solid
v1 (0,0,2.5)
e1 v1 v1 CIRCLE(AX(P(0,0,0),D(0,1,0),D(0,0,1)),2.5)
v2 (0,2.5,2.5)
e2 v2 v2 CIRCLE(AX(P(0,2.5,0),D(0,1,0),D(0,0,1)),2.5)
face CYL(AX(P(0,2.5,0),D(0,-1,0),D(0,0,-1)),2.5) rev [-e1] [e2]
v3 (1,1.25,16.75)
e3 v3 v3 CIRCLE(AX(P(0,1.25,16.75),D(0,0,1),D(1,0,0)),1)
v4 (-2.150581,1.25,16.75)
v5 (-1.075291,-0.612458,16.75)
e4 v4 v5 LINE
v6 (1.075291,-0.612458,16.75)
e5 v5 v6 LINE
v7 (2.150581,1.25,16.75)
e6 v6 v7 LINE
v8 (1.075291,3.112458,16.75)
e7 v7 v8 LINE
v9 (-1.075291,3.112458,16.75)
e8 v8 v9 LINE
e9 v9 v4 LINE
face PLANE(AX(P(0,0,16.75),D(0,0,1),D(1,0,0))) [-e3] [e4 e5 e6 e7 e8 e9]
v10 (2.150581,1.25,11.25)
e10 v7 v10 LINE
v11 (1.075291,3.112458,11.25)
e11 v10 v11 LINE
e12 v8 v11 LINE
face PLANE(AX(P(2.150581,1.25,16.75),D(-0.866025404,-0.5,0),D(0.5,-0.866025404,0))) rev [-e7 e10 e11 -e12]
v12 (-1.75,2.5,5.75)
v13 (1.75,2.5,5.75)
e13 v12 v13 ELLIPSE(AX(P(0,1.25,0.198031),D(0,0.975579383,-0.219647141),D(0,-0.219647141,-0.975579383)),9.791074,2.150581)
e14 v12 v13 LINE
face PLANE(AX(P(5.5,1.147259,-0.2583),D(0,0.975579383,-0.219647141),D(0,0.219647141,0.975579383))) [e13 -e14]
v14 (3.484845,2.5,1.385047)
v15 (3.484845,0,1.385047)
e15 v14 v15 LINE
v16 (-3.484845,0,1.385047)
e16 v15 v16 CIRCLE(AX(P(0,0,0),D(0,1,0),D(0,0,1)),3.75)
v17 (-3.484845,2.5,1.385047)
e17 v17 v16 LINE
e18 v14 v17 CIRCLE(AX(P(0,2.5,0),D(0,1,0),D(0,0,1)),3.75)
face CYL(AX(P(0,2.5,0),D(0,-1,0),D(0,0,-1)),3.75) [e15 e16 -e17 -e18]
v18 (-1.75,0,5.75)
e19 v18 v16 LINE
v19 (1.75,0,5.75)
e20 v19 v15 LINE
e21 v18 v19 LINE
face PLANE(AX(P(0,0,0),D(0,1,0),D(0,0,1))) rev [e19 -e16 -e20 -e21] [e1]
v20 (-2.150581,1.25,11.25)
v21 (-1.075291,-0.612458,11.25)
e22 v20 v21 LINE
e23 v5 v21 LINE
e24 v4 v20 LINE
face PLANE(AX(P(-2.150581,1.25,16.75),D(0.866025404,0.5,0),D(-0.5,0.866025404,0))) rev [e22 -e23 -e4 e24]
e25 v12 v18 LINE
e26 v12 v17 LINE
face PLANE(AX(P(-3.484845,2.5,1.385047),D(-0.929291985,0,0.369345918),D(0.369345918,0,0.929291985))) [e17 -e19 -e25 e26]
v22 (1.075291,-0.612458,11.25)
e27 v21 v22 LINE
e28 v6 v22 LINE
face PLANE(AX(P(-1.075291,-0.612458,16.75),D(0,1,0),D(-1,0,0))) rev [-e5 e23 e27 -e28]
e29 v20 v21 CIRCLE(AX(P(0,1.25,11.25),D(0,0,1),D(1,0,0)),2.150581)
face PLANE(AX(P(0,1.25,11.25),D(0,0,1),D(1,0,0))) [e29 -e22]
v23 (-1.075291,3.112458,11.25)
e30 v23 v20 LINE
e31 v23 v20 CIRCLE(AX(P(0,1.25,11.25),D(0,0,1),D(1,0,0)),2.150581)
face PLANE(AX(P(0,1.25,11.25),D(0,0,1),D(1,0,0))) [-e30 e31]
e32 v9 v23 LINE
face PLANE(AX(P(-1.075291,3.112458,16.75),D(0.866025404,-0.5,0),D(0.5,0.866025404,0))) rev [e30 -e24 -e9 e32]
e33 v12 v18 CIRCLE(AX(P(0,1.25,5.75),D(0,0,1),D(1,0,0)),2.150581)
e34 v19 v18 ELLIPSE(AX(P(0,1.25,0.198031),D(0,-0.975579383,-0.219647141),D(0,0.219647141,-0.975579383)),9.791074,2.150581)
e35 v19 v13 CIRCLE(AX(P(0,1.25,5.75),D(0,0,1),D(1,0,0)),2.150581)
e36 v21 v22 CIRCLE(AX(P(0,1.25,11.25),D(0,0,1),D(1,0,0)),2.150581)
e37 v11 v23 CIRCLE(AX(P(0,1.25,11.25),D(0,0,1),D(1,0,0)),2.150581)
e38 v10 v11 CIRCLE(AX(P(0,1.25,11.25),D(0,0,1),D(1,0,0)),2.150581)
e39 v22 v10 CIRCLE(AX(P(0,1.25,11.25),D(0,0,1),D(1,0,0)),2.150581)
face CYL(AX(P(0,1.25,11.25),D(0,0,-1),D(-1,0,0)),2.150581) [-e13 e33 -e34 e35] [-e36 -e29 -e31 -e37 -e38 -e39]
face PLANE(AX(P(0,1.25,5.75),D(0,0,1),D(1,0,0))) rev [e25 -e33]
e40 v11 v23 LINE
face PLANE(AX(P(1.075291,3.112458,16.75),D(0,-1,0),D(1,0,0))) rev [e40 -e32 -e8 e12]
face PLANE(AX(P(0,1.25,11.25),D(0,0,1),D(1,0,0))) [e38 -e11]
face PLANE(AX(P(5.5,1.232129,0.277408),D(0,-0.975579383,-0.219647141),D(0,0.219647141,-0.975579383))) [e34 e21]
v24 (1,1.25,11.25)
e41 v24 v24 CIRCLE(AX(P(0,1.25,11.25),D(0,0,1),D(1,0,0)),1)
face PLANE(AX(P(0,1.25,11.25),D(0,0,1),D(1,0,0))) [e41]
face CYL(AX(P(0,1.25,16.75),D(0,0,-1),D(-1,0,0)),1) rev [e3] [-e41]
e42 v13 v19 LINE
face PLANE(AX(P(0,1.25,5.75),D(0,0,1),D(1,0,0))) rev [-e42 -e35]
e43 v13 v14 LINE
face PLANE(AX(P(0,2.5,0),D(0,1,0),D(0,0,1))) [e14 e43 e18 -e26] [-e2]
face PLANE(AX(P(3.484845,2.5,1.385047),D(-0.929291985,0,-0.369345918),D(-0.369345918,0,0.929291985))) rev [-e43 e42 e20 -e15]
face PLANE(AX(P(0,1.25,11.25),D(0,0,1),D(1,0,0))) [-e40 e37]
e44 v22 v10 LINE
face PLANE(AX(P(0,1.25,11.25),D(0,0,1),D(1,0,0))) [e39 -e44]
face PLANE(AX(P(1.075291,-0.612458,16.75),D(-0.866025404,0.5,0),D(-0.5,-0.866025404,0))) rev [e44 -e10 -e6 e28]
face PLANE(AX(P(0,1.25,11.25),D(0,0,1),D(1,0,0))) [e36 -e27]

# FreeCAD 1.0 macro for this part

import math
import FreeCAD as App
import Part
import Sketcher
from FreeCAD import Vector
Q = App.Units.Quantity


def add_polygon(sketch, points):
    """Adds a closed chain of lines whose ends are joined by coincident constraints."""
    first, n = sketch.GeometryCount, len(points)
    for a, b in zip(points, points[1:] + points[:1]):
        sketch.addGeometry(Part.LineSegment(App.Vector(*a, 0), App.Vector(*b, 0)), False)
    for i in range(n):
        sketch.addConstraint(Sketcher.Constraint("Coincident", first + i, 2, first + (i + 1) % n, 1))

doc = App.newDocument("Part")
body = doc.addObject("PartDesign::Body", "Body")

sketch1 = doc.addObject("Sketcher::SketchObject", "Sketch")
body.addObject(sketch1)
sketch1.AttachmentSupport = (doc.XZ_Plane, [""])
sketch1.MapMode = "FlatFace"
sketch1.addGeometry([
    Part.LineSegment(Vector(-3.5, 1.4, 0), Vector(-1.8, 5.8, 0)),
    Part.LineSegment(Vector(-1.8, 5.8, 0), Vector(1.8, 5.8, 0)),
    Part.LineSegment(Vector(1.8, 5.8, 0), Vector(3.5, 1.4, 0)),
    Part.ArcOfCircle(Part.Circle(Vector(0, 0, 0), Vector(0, 0, 1), 3.8), math.radians(158), math.radians(382)),
    Part.Circle(Vector(0, 0, 0), Vector(0, 0, 1), 2.5),
], False)
sketch1.addConstraint([
    Sketcher.Constraint("Coincident", 0, 2, 1, 1),
    Sketcher.Constraint("Coincident", 1, 2, 2, 1),
    Sketcher.Constraint("Tangent", 2, 2, 3, 2),
    Sketcher.Constraint("Tangent", 3, 1, 0, 1),
    Sketcher.Constraint("Horizontal", 1),
    Sketcher.Constraint("Coincident", 3, 3, -1, 1),
    Sketcher.Constraint("Coincident", 4, 3, -1, 1),
    Sketcher.Constraint("Horizontal", 2, 2, 3, 1),
    Sketcher.Constraint("Diameter", 4, Q("5 mm")),
    Sketcher.Constraint("Radius", 3, Q("3.75 mm")),
    Sketcher.Constraint("DistanceX", 1, 1, 1, 2, Q("3.5 mm")),
    Sketcher.Constraint("DistanceY", -1, 1, 0, 2, Q("5.75 mm")),
])
pad1 = doc.addObject("PartDesign::Pad", "Pad")
body.addObject(pad1)
pad1.Profile = sketch1
pad1.Length = 2.5
pad1.Reversed = True

sketch2 = doc.addObject("Sketcher::SketchObject", "Sketch001")
body.addObject(sketch2)
sketch2.AttachmentSupport = (doc.XY_Plane, [""])
sketch2.MapMode = "FlatFace"
sketch2.AttachmentOffset = App.Placement(Vector(0, 0, 5.75), App.Rotation())
sketch2.addGeometry(Part.Circle(Vector(0, 1.2, 0), Vector(0, 0, 1), 2.2), False)
sketch2.addConstraint([
    Sketcher.Constraint("PointOnObject", 0, 3, -2),
    Sketcher.Constraint("DistanceY", -1, 1, 0, 3, Q("1.25 mm")),
    Sketcher.Constraint("Diameter", 0, Q("4.301163 mm")),
])
pad2 = doc.addObject("PartDesign::Pad", "Pad001")
body.addObject(pad2)
pad2.Profile = sketch2
pad2.Length = 5.5

sketch3 = doc.addObject("Sketcher::SketchObject", "Sketch002")
body.addObject(sketch3)
sketch3.AttachmentSupport = (doc.YZ_Plane, [""])
sketch3.MapMode = "FlatFace"
add_polygon(sketch3, [(-0.9, 9.8), (-0.9, 5.8), (0, 5.8)])
add_polygon(sketch3, [(2.5, 5.8), (3.4, 5.8), (3.4, 9.8)])
sketch3.addConstraint([
    Sketcher.Constraint("Vertical", 0),
    Sketcher.Constraint("Horizontal", 1),
    Sketcher.Constraint("Horizontal", 3),
    Sketcher.Constraint("Vertical", 4),
    Sketcher.Constraint("PointOnObject", 1, 2, -2),
    Sketcher.Constraint("Horizontal", 1, 2, 3, 2),
    Sketcher.Constraint("Horizontal", 2, 2, 4, 2),
    Sketcher.Constraint("Equal", 1, 3),
    Sketcher.Constraint("DistanceY", 0, 2, 0, 1, Q("4 mm")),
    Sketcher.Constraint("DistanceX", -1, 1, 5, 2, Q("2.5 mm")),
    Sketcher.Constraint("DistanceY", -1, 1, 0, 2, Q("5.75 mm")),
    Sketcher.Constraint("DistanceX", 1, 1, 1, 2, Q("0.900581 mm")),
])
pocket1 = doc.addObject("PartDesign::Pocket", "Pocket")
body.addObject(pocket1)
pocket1.Profile = sketch3
pocket1.Type = "ThroughAll"
pocket1.Midplane = True

sketch4 = doc.addObject("Sketcher::SketchObject", "Sketch003")
body.addObject(sketch4)
sketch4.AttachmentSupport = (doc.XY_Plane, [""])
sketch4.MapMode = "FlatFace"
sketch4.AttachmentOffset = App.Placement(Vector(0, 0, 11.25), App.Rotation())
add_polygon(sketch4, [(2.2, 1.2), (1.1, 3.1), (-1.1, 3.1), (-2.2, 1.2), (-1.1, -0.6), (1.1, -0.6)])
sketch4.addGeometry(Part.Circle(Vector(0, 1.2, 0), Vector(0, 0, 1), 1), False)
sketch4.addConstraint([
    Sketcher.Constraint("Horizontal", 1),
    Sketcher.Constraint("Horizontal", 4),
    Sketcher.Constraint("Symmetric", 2, 2, 5, 2, -2),
    Sketcher.Constraint("PointOnObject", 6, 3, -2),
    Sketcher.Constraint("Parallel", 0, 3),
    Sketcher.Constraint("Parallel", 2, 5),
    Sketcher.Constraint("Horizontal", 6, 3, 2, 2),
    Sketcher.Constraint("Vertical", 1, 2, 3, 2),
    Sketcher.Constraint("Vertical", 0, 2, 4, 2),
    Sketcher.Constraint("Diameter", 6, Q("2 mm")),
    Sketcher.Constraint("Angle", 0, Q("120 deg")),
    Sketcher.Constraint("DistanceY", -1, 1, 6, 3, Q("1.25 mm")),
    Sketcher.Constraint("DistanceX", 1, 2, 1, 1, Q("2.150581 mm")),
    Sketcher.Constraint("Distance", 0, Q("2.150581 mm")),
])
pad3 = doc.addObject("PartDesign::Pad", "Pad002")
body.addObject(pad3)
pad3.Profile = sketch4
pad3.Length = 5.5

doc.recompute()
